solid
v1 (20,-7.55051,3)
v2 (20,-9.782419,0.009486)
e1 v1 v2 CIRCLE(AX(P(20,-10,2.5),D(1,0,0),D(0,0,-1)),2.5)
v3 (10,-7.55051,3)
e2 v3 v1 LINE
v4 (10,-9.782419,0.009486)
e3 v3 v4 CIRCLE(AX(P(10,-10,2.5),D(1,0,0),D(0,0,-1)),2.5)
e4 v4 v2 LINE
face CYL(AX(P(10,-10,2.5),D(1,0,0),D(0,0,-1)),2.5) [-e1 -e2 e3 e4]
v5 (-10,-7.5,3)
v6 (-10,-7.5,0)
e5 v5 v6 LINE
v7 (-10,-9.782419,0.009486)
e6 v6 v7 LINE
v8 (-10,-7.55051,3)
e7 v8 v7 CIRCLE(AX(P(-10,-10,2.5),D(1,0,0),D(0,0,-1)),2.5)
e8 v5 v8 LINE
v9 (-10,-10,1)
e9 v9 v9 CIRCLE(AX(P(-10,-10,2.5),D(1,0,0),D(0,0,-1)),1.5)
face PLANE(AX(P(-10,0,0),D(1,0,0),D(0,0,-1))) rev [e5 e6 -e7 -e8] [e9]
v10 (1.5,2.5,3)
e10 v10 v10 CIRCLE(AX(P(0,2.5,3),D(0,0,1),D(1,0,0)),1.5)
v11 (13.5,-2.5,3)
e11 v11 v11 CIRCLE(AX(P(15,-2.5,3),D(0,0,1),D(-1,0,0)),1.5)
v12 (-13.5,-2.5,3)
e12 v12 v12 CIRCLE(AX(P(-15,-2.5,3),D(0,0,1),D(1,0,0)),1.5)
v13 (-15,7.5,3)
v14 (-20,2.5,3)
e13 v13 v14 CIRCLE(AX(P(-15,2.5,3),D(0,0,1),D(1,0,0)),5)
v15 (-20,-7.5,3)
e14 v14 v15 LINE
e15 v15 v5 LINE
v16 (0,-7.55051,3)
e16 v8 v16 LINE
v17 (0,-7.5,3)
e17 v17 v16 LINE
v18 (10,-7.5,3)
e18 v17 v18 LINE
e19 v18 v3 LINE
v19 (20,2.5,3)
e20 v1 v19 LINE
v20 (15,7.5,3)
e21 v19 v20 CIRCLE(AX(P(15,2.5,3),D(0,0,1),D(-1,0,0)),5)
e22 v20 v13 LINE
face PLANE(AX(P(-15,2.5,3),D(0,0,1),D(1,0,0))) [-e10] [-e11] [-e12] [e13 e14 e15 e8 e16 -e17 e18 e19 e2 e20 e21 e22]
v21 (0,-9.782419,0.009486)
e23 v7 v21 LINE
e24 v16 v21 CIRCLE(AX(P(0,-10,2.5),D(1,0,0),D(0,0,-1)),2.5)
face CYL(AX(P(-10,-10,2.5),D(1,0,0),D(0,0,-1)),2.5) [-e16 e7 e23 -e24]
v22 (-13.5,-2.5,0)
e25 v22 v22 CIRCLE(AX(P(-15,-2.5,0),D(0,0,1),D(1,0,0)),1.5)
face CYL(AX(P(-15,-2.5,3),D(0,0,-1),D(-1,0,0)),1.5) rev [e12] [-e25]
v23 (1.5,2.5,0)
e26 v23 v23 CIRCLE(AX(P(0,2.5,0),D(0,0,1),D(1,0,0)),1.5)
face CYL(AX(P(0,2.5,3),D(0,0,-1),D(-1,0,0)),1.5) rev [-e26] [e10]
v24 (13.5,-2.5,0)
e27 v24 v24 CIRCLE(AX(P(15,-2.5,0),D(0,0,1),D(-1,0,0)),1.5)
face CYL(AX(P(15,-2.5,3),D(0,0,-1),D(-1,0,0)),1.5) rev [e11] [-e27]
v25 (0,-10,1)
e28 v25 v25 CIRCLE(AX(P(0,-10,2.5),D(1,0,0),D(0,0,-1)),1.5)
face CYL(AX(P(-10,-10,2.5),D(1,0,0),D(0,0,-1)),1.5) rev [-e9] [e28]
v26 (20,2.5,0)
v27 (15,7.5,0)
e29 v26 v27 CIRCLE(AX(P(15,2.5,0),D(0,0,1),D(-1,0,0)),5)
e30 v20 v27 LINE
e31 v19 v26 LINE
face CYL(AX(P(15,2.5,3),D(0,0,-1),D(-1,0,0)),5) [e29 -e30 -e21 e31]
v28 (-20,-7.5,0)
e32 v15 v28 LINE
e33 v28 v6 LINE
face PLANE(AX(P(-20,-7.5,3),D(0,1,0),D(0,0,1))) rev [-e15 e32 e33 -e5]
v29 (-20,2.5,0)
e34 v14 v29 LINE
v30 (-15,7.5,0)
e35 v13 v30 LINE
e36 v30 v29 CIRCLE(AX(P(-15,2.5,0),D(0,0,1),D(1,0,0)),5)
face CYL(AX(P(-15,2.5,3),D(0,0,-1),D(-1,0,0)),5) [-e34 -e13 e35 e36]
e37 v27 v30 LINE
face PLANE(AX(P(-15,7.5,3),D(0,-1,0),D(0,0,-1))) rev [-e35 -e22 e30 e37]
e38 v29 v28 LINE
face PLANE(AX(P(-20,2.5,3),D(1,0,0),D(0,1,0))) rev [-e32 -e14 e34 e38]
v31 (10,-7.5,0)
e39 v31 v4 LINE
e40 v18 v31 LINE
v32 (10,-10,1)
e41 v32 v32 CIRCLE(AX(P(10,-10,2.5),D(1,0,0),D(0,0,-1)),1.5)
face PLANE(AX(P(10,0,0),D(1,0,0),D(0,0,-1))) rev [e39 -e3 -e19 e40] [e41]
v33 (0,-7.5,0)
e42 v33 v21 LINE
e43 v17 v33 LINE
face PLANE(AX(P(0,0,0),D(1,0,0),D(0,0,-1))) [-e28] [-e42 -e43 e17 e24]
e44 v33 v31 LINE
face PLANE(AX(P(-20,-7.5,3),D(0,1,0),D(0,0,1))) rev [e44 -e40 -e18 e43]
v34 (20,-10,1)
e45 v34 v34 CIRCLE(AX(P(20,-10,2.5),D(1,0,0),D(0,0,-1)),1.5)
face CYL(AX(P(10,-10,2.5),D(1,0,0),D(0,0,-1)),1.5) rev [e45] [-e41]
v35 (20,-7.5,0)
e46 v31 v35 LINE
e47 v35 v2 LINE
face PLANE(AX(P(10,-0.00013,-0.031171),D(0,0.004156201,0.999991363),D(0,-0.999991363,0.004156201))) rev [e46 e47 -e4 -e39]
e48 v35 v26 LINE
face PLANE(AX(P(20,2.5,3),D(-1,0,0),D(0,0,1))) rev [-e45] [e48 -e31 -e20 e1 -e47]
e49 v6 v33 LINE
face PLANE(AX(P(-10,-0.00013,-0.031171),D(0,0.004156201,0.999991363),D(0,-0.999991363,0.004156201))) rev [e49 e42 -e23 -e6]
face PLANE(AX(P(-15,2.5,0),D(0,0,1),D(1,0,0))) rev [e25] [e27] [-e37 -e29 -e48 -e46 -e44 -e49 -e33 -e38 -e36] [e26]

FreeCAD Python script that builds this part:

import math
import FreeCAD as App
import Part
import Sketcher

V = App.Vector
Q = App.Units.Quantity

doc = App.newDocument("Part")
params = doc.addObject("Spreadsheet::Sheet", "Params")
for row, (alias, value) in enumerate([
    ("sketch1_diameter", "3 mm"),
    ("sketch1_radius", "5 mm"),
    ("sketch1_width", "30 mm"),
    ("sketch1_height", "10 mm"),
    ("pad1_length", "3 mm"),
    ("sketch2_diameter", "3 mm"),
    ("sketch2_radius", "2.5 mm"),
    ("sketch2_height", "3 mm"),
    ("pad2_length", "10 mm"),
    ("linearpattern_pitch", "20 mm"),
], start=1):
    params.set(f"A{row}", alias)
    params.set(f"B{row}", "=" + value)
    params.setAlias(f"B{row}", alias)

body = doc.addObject("PartDesign::Body", "Body")

# Sketch on XY plane
sketch1 = body.newObject("Sketcher::SketchObject", "Sketch")
sketch1.AttachmentSupport = (doc.getObject("XY_Plane"), [""])
sketch1.MapMode = "FlatFace"
sketch1.addGeometry(Part.LineSegment(V(15, 7.5, 0), V(-15, 7.5, 0)), False)
sketch1.addGeometry(Part.ArcOfCircle(Part.Circle(V(-15, 2.5, 0), V(0, 0, 1), 5), math.radians(90), math.radians(180)), False)
sketch1.addGeometry(Part.LineSegment(V(-20, 2.5, 0), V(-20, -7.5, 0)), False)
sketch1.addGeometry(Part.LineSegment(V(-20, -7.5, 0), V(20, -7.5, 0)), False)
sketch1.addGeometry(Part.LineSegment(V(20, -7.5, 0), V(20, 2.5, 0)), False)
sketch1.addGeometry(Part.ArcOfCircle(Part.Circle(V(15, 2.5, 0), V(0, 0, 1), 5), math.radians(0), math.radians(90)), False)
sketch1.addGeometry(Part.Circle(V(15, -2.5, 0), V(0, 0, 1), 1.5), False)
sketch1.addGeometry(Part.Circle(V(-15, -2.5, 0), V(0, 0, 1), 1.5), False)
sketch1.addGeometry(Part.Circle(V(0, 2.5, 0), V(0, 0, 1), 1.5), False)
sketch1.addConstraint(Sketcher.Constraint("Tangent", 0, 2, 1, 1))
sketch1.addConstraint(Sketcher.Constraint("Tangent", 1, 2, 2, 1))
sketch1.addConstraint(Sketcher.Constraint("Coincident", 2, 2, 3, 1))
sketch1.addConstraint(Sketcher.Constraint("Coincident", 3, 2, 4, 1))
sketch1.addConstraint(Sketcher.Constraint("Tangent", 4, 2, 5, 1))
sketch1.addConstraint(Sketcher.Constraint("Tangent", 5, 2, 0, 1))
sketch1.addConstraint(Sketcher.Constraint("Horizontal", 0))
sketch1.addConstraint(Sketcher.Constraint("Vertical", 2))
sketch1.addConstraint(Sketcher.Constraint("Horizontal", 3))
sketch1.addConstraint(Sketcher.Constraint("Vertical", 4))
sketch1.addConstraint(Sketcher.Constraint("Equal", 1, 5))
sketch1.addConstraint(Sketcher.Constraint("Equal", 6, 7))
sketch1.addConstraint(Sketcher.Constraint("Equal", 7, 8))
sketch1.addConstraint(Sketcher.Constraint("Symmetric", 1, 3, 6, 3, -1, 1))
sketch1.addConstraint(Sketcher.Constraint("Symmetric", 5, 3, 7, 3, -1, 1))
sketch1.addConstraint(Sketcher.Constraint("PointOnObject", 8, 3, -2))
sketch1.addConstraint(Sketcher.Constraint("Horizontal", 5, 3, 8, 3))
sketch1.addConstraint(Sketcher.Constraint("Vertical", 5, 3, 6, 3))
sketch1.addConstraint(Sketcher.Constraint("Diameter", 6, Q("3 mm")))
sketch1.addConstraint(Sketcher.Constraint("Radius", 1, Q("5 mm")))
sketch1.addConstraint(Sketcher.Constraint("DistanceX", 0, 2, 0, 1, Q("30 mm")))
sketch1.addConstraint(Sketcher.Constraint("DistanceY", 2, 2, 2, 1, Q("10 mm")))
sketch1.addConstraint(Sketcher.Constraint("DistanceY", 6, 3, 5, 3, Q("5 mm")))
sketch1.setExpression("Constraints[18]", "Params.sketch1_diameter")
sketch1.setExpression("Constraints[19]", "Params.sketch1_radius")
sketch1.setExpression("Constraints[20]", "Params.sketch1_width")
sketch1.setExpression("Constraints[21]", "Params.sketch1_height")
pad1 = body.newObject("PartDesign::Pad", "Pad")
pad1.Profile = sketch1
pad1.setExpression("Length", "Params.pad1_length")

# Sketch on YZ plane
sketch2 = body.newObject("Sketcher::SketchObject", "Sketch001")
sketch2.AttachmentSupport = (doc.getObject("YZ_Plane"), [""])
sketch2.MapMode = "FlatFace"
sketch2.AttachmentOffset = App.Placement(V(0, 0, 20), App.Rotation())
sketch2.addGeometry(Part.LineSegment(V(-9.782419, 0.009486, 0), V(-7.5, 0, 0)), False)
sketch2.addGeometry(Part.LineSegment(V(-7.5, 0, 0), V(-7.5, 3, 0)), False)
sketch2.addGeometry(Part.LineSegment(V(-7.5, 3, 0), V(-7.55051, 3, 0)), False)
sketch2.addGeometry(Part.ArcOfCircle(Part.Circle(V(-10, 2.5, 0), V(0, 0, 1), 2.5), math.radians(11.536959), math.radians(274.9929)), False)
sketch2.addGeometry(Part.Circle(V(-10, 2.5, 0), V(0, 0, 1), 1.5), False)
sketch2.addConstraint(Sketcher.Constraint("Coincident", 0, 2, 1, 1))
sketch2.addConstraint(Sketcher.Constraint("Coincident", 1, 2, 2, 1))
sketch2.addConstraint(Sketcher.Constraint("Coincident", 2, 2, 3, 1))
sketch2.addConstraint(Sketcher.Constraint("Coincident", 3, 2, 0, 1))
sketch2.addConstraint(Sketcher.Constraint("Vertical", 1))
sketch2.addConstraint(Sketcher.Constraint("Horizontal", 2))
sketch2.addConstraint(Sketcher.Constraint("Coincident", 4, 3, 3, 3))
sketch2.addConstraint(Sketcher.Constraint("PointOnObject", 0, 2, -1))
sketch2.addConstraint(Sketcher.Constraint("Diameter", 4, Q("3 mm")))
sketch2.addConstraint(Sketcher.Constraint("Radius", 3, Q("2.5 mm")))
sketch2.addConstraint(Sketcher.Constraint("DistanceY", 1, 1, 1, 2, Q("3 mm")))
sketch2.addConstraint(Sketcher.Constraint("DistanceX", 3, 3, -1, 1, Q("10 mm")))
sketch2.addConstraint(Sketcher.Constraint("DistanceY", -1, 1, 3, 3, Q("2.5 mm")))
sketch2.addConstraint(Sketcher.Constraint("DistanceX", 0, 2, -1, 1, Q("7.5 mm")))
sketch2.addConstraint(Sketcher.Constraint("Distance", 0, Q("2.282439 mm")))
sketch2.setExpression("Constraints[8]", "Params.sketch2_diameter")
sketch2.setExpression("Constraints[9]", "Params.sketch2_radius")
sketch2.setExpression("Constraints[10]", "Params.sketch2_height")
pad2 = body.newObject("PartDesign::Pad", "Pad001")
pad2.Profile = sketch2
pad2.setExpression("Length", "Params.pad2_length")
pad2.Reversed = True
doc.recompute()

linearpattern = body.newObject("PartDesign::LinearPattern", "LinearPattern")
linearpattern.Originals = [pad2]
linearpattern.Direction = (doc.getObject("X_Axis"), [""])
linearpattern.Mode = "offset"
linearpattern.setExpression("Offset", "Params.linearpattern_pitch")
linearpattern.Occurrences = 2
linearpattern.Reversed = True
body.Tip = linearpattern

doc.recompute()
